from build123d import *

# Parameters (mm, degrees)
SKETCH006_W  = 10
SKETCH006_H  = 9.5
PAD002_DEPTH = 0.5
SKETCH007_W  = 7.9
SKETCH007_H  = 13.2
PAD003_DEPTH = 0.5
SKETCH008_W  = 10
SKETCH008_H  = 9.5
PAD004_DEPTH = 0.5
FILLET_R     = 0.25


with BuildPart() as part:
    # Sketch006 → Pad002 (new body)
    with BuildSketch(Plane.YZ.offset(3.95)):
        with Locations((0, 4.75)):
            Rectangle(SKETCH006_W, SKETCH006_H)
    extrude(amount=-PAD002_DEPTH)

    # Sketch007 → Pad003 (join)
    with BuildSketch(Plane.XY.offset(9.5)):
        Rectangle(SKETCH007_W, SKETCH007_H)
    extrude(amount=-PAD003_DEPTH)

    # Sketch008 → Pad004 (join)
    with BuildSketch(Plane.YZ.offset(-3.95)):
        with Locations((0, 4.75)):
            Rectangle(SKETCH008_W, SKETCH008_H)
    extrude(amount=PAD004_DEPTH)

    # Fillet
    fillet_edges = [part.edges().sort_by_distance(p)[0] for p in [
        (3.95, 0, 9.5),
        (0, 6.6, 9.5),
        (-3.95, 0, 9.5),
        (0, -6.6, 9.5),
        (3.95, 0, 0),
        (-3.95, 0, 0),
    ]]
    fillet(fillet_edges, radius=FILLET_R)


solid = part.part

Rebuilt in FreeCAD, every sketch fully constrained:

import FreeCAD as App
import Part
import Sketcher


def edges_at(feature, points):
    """Names of the edges that pass closest to the given points."""
    edges = feature.Shape.Edges
    near = lambda p: min(range(len(edges)), key=lambda i: edges[i].distToShape(Part.Vertex(*p))[0])
    return sorted({f"Edge{near(p) + 1}" for p in points})

doc = App.newDocument("Part")
params = doc.addObject("Spreadsheet::Sheet", "Params")
for row, (alias, value) in enumerate([
    ("sketch1_width", "10 mm"),
    ("sketch1_height", "9.5 mm"),
    ("pad1_length", "0.5 mm"),
    ("sketch2_width", "7.9 mm"),
    ("sketch2_height", "13.2 mm"),
    ("pad2_length", "0.5 mm"),
    ("sketch3_width", "10 mm"),
    ("sketch3_height", "9.5 mm"),
    ("pad3_length", "0.5 mm"),
    ("fillet_radius", "0.25 mm"),
], start=1):
    params.set(f"A{row}", alias)
    params.set(f"B{row}", "=" + value)
    params.setAlias(f"B{row}", alias)

body = doc.addObject("PartDesign::Body", "Body")

sketch1 = doc.addObject("Sketcher::SketchObject", "Sketch")
body.addObject(sketch1)
sketch1.AttachmentSupport = (doc.YZ_Plane, [""])
sketch1.MapMode = "FlatFace"
sketch1.AttachmentOffset = App.Placement(App.Vector(0, 0, 3.95), App.Rotation())
sketch1.addGeometry(Part.LineSegment(App.Vector(-5, 9.5, 0), App.Vector(-5, 0, 0)), False)
sketch1.addGeometry(Part.LineSegment(App.Vector(-5, 0, 0), App.Vector(5, 0, 0)), False)
sketch1.addGeometry(Part.LineSegment(App.Vector(5, 0, 0), App.Vector(5, 9.5, 0)), False)
sketch1.addGeometry(Part.LineSegment(App.Vector(5, 9.5, 0), App.Vector(-5, 9.5, 0)), False)
sketch1.addConstraint(Sketcher.Constraint("Coincident", 0, 2, 1, 1))
sketch1.addConstraint(Sketcher.Constraint("Coincident", 1, 2, 2, 1))
sketch1.addConstraint(Sketcher.Constraint("Coincident", 2, 2, 3, 1))
sketch1.addConstraint(Sketcher.Constraint("Coincident", 3, 2, 0, 1))
sketch1.addConstraint(Sketcher.Constraint("Vertical", 0))
sketch1.addConstraint(Sketcher.Constraint("Horizontal", 1))
sketch1.addConstraint(Sketcher.Constraint("Vertical", 2))
sketch1.addConstraint(Sketcher.Constraint("Horizontal", 3))
sketch1.addConstraint(Sketcher.Constraint("Symmetric", 0, 2, 1, 2, -1, 1))
sketch1.addConstraint(Sketcher.Constraint("DistanceX", 1, 1, 1, 2, 10.0))
sketch1.addConstraint(Sketcher.Constraint("DistanceY", 0, 2, 0, 1, 9.5))
sketch1.setExpression("Constraints[9]", "Params.sketch1_width")
sketch1.setExpression("Constraints[10]", "Params.sketch1_height")
pad1 = doc.addObject("PartDesign::Pad", "Pad")
body.addObject(pad1)
pad1.Profile = sketch1
pad1.setExpression("Length", "Params.pad1_length")
pad1.Reversed = True

sketch2 = doc.addObject("Sketcher::SketchObject", "Sketch001")
body.addObject(sketch2)
sketch2.AttachmentSupport = (doc.XY_Plane, [""])
sketch2.MapMode = "FlatFace"
sketch2.AttachmentOffset = App.Placement(App.Vector(0, 0, 9.5), App.Rotation())
sketch2.addGeometry(Part.LineSegment(App.Vector(-3.95, 6.6, 0), App.Vector(-3.95, -6.6, 0)), False)
sketch2.addGeometry(Part.LineSegment(App.Vector(-3.95, -6.6, 0), App.Vector(3.95, -6.6, 0)), False)
sketch2.addGeometry(Part.LineSegment(App.Vector(3.95, -6.6, 0), App.Vector(3.95, 6.6, 0)), False)
sketch2.addGeometry(Part.LineSegment(App.Vector(3.95, 6.6, 0), App.Vector(-3.95, 6.6, 0)), False)
sketch2.addConstraint(Sketcher.Constraint("Coincident", 0, 2, 1, 1))
sketch2.addConstraint(Sketcher.Constraint("Coincident", 1, 2, 2, 1))
sketch2.addConstraint(Sketcher.Constraint("Coincident", 2, 2, 3, 1))
sketch2.addConstraint(Sketcher.Constraint("Coincident", 3, 2, 0, 1))
sketch2.addConstraint(Sketcher.Constraint("Vertical", 0))
sketch2.addConstraint(Sketcher.Constraint("Horizontal", 1))
sketch2.addConstraint(Sketcher.Constraint("Vertical", 2))
sketch2.addConstraint(Sketcher.Constraint("Horizontal", 3))
sketch2.addConstraint(Sketcher.Constraint("Symmetric", 0, 2, 2, 2, -1, 1))
sketch2.addConstraint(Sketcher.Constraint("DistanceX", 1, 1, 1, 2, 7.9))
sketch2.addConstraint(Sketcher.Constraint("DistanceY", 0, 2, 0, 1, 13.2))
sketch2.setExpression("Constraints[9]", "Params.sketch2_width")
sketch2.setExpression("Constraints[10]", "Params.sketch2_height")
pad2 = doc.addObject("PartDesign::Pad", "Pad001")
body.addObject(pad2)
pad2.Profile = sketch2
pad2.setExpression("Length", "Params.pad2_length")
pad2.Reversed = True

sketch3 = doc.addObject("Sketcher::SketchObject", "Sketch002")
body.addObject(sketch3)
sketch3.AttachmentSupport = (doc.YZ_Plane, [""])
sketch3.MapMode = "FlatFace"
sketch3.AttachmentOffset = App.Placement(App.Vector(0, 0, -3.95), App.Rotation())
sketch3.addGeometry(Part.LineSegment(App.Vector(-5, 9.5, 0), App.Vector(-5, 0, 0)), False)
sketch3.addGeometry(Part.LineSegment(App.Vector(-5, 0, 0), App.Vector(5, 0, 0)), False)
sketch3.addGeometry(Part.LineSegment(App.Vector(5, 0, 0), App.Vector(5, 9.5, 0)), False)
sketch3.addGeometry(Part.LineSegment(App.Vector(5, 9.5, 0), App.Vector(-5, 9.5, 0)), False)
sketch3.addConstraint(Sketcher.Constraint("Coincident", 0, 2, 1, 1))
sketch3.addConstraint(Sketcher.Constraint("Coincident", 1, 2, 2, 1))
sketch3.addConstraint(Sketcher.Constraint("Coincident", 2, 2, 3, 1))
sketch3.addConstraint(Sketcher.Constraint("Coincident", 3, 2, 0, 1))
sketch3.addConstraint(Sketcher.Constraint("Vertical", 0))
sketch3.addConstraint(Sketcher.Constraint("Horizontal", 1))
sketch3.addConstraint(Sketcher.Constraint("Vertical", 2))
sketch3.addConstraint(Sketcher.Constraint("Horizontal", 3))
sketch3.addConstraint(Sketcher.Constraint("Symmetric", 0, 2, 1, 2, -1, 1))
sketch3.addConstraint(Sketcher.Constraint("DistanceX", 1, 1, 1, 2, 10.0))
sketch3.addConstraint(Sketcher.Constraint("DistanceY", 0, 2, 0, 1, 9.5))
sketch3.setExpression("Constraints[9]", "Params.sketch3_width")
sketch3.setExpression("Constraints[10]", "Params.sketch3_height")
pad3 = doc.addObject("PartDesign::Pad", "Pad002")
body.addObject(pad3)
pad3.Profile = sketch3
pad3.setExpression("Length", "Params.pad3_length")
doc.recompute()

fillet = doc.addObject("PartDesign::Fillet", "Fillet")
body.addObject(fillet)
fillet.Base = (pad3, edges_at(pad3, [
    (3.95, 0, 9.5),
    (0, 6.6, 9.5),
    (-3.95, 0, 9.5),
    (0, -6.6, 9.5),
    (3.95, 0, 0),
    (-3.95, 0, 0),
]))
fillet.setExpression("Radius", "Params.fillet_radius")

doc.recompute()
